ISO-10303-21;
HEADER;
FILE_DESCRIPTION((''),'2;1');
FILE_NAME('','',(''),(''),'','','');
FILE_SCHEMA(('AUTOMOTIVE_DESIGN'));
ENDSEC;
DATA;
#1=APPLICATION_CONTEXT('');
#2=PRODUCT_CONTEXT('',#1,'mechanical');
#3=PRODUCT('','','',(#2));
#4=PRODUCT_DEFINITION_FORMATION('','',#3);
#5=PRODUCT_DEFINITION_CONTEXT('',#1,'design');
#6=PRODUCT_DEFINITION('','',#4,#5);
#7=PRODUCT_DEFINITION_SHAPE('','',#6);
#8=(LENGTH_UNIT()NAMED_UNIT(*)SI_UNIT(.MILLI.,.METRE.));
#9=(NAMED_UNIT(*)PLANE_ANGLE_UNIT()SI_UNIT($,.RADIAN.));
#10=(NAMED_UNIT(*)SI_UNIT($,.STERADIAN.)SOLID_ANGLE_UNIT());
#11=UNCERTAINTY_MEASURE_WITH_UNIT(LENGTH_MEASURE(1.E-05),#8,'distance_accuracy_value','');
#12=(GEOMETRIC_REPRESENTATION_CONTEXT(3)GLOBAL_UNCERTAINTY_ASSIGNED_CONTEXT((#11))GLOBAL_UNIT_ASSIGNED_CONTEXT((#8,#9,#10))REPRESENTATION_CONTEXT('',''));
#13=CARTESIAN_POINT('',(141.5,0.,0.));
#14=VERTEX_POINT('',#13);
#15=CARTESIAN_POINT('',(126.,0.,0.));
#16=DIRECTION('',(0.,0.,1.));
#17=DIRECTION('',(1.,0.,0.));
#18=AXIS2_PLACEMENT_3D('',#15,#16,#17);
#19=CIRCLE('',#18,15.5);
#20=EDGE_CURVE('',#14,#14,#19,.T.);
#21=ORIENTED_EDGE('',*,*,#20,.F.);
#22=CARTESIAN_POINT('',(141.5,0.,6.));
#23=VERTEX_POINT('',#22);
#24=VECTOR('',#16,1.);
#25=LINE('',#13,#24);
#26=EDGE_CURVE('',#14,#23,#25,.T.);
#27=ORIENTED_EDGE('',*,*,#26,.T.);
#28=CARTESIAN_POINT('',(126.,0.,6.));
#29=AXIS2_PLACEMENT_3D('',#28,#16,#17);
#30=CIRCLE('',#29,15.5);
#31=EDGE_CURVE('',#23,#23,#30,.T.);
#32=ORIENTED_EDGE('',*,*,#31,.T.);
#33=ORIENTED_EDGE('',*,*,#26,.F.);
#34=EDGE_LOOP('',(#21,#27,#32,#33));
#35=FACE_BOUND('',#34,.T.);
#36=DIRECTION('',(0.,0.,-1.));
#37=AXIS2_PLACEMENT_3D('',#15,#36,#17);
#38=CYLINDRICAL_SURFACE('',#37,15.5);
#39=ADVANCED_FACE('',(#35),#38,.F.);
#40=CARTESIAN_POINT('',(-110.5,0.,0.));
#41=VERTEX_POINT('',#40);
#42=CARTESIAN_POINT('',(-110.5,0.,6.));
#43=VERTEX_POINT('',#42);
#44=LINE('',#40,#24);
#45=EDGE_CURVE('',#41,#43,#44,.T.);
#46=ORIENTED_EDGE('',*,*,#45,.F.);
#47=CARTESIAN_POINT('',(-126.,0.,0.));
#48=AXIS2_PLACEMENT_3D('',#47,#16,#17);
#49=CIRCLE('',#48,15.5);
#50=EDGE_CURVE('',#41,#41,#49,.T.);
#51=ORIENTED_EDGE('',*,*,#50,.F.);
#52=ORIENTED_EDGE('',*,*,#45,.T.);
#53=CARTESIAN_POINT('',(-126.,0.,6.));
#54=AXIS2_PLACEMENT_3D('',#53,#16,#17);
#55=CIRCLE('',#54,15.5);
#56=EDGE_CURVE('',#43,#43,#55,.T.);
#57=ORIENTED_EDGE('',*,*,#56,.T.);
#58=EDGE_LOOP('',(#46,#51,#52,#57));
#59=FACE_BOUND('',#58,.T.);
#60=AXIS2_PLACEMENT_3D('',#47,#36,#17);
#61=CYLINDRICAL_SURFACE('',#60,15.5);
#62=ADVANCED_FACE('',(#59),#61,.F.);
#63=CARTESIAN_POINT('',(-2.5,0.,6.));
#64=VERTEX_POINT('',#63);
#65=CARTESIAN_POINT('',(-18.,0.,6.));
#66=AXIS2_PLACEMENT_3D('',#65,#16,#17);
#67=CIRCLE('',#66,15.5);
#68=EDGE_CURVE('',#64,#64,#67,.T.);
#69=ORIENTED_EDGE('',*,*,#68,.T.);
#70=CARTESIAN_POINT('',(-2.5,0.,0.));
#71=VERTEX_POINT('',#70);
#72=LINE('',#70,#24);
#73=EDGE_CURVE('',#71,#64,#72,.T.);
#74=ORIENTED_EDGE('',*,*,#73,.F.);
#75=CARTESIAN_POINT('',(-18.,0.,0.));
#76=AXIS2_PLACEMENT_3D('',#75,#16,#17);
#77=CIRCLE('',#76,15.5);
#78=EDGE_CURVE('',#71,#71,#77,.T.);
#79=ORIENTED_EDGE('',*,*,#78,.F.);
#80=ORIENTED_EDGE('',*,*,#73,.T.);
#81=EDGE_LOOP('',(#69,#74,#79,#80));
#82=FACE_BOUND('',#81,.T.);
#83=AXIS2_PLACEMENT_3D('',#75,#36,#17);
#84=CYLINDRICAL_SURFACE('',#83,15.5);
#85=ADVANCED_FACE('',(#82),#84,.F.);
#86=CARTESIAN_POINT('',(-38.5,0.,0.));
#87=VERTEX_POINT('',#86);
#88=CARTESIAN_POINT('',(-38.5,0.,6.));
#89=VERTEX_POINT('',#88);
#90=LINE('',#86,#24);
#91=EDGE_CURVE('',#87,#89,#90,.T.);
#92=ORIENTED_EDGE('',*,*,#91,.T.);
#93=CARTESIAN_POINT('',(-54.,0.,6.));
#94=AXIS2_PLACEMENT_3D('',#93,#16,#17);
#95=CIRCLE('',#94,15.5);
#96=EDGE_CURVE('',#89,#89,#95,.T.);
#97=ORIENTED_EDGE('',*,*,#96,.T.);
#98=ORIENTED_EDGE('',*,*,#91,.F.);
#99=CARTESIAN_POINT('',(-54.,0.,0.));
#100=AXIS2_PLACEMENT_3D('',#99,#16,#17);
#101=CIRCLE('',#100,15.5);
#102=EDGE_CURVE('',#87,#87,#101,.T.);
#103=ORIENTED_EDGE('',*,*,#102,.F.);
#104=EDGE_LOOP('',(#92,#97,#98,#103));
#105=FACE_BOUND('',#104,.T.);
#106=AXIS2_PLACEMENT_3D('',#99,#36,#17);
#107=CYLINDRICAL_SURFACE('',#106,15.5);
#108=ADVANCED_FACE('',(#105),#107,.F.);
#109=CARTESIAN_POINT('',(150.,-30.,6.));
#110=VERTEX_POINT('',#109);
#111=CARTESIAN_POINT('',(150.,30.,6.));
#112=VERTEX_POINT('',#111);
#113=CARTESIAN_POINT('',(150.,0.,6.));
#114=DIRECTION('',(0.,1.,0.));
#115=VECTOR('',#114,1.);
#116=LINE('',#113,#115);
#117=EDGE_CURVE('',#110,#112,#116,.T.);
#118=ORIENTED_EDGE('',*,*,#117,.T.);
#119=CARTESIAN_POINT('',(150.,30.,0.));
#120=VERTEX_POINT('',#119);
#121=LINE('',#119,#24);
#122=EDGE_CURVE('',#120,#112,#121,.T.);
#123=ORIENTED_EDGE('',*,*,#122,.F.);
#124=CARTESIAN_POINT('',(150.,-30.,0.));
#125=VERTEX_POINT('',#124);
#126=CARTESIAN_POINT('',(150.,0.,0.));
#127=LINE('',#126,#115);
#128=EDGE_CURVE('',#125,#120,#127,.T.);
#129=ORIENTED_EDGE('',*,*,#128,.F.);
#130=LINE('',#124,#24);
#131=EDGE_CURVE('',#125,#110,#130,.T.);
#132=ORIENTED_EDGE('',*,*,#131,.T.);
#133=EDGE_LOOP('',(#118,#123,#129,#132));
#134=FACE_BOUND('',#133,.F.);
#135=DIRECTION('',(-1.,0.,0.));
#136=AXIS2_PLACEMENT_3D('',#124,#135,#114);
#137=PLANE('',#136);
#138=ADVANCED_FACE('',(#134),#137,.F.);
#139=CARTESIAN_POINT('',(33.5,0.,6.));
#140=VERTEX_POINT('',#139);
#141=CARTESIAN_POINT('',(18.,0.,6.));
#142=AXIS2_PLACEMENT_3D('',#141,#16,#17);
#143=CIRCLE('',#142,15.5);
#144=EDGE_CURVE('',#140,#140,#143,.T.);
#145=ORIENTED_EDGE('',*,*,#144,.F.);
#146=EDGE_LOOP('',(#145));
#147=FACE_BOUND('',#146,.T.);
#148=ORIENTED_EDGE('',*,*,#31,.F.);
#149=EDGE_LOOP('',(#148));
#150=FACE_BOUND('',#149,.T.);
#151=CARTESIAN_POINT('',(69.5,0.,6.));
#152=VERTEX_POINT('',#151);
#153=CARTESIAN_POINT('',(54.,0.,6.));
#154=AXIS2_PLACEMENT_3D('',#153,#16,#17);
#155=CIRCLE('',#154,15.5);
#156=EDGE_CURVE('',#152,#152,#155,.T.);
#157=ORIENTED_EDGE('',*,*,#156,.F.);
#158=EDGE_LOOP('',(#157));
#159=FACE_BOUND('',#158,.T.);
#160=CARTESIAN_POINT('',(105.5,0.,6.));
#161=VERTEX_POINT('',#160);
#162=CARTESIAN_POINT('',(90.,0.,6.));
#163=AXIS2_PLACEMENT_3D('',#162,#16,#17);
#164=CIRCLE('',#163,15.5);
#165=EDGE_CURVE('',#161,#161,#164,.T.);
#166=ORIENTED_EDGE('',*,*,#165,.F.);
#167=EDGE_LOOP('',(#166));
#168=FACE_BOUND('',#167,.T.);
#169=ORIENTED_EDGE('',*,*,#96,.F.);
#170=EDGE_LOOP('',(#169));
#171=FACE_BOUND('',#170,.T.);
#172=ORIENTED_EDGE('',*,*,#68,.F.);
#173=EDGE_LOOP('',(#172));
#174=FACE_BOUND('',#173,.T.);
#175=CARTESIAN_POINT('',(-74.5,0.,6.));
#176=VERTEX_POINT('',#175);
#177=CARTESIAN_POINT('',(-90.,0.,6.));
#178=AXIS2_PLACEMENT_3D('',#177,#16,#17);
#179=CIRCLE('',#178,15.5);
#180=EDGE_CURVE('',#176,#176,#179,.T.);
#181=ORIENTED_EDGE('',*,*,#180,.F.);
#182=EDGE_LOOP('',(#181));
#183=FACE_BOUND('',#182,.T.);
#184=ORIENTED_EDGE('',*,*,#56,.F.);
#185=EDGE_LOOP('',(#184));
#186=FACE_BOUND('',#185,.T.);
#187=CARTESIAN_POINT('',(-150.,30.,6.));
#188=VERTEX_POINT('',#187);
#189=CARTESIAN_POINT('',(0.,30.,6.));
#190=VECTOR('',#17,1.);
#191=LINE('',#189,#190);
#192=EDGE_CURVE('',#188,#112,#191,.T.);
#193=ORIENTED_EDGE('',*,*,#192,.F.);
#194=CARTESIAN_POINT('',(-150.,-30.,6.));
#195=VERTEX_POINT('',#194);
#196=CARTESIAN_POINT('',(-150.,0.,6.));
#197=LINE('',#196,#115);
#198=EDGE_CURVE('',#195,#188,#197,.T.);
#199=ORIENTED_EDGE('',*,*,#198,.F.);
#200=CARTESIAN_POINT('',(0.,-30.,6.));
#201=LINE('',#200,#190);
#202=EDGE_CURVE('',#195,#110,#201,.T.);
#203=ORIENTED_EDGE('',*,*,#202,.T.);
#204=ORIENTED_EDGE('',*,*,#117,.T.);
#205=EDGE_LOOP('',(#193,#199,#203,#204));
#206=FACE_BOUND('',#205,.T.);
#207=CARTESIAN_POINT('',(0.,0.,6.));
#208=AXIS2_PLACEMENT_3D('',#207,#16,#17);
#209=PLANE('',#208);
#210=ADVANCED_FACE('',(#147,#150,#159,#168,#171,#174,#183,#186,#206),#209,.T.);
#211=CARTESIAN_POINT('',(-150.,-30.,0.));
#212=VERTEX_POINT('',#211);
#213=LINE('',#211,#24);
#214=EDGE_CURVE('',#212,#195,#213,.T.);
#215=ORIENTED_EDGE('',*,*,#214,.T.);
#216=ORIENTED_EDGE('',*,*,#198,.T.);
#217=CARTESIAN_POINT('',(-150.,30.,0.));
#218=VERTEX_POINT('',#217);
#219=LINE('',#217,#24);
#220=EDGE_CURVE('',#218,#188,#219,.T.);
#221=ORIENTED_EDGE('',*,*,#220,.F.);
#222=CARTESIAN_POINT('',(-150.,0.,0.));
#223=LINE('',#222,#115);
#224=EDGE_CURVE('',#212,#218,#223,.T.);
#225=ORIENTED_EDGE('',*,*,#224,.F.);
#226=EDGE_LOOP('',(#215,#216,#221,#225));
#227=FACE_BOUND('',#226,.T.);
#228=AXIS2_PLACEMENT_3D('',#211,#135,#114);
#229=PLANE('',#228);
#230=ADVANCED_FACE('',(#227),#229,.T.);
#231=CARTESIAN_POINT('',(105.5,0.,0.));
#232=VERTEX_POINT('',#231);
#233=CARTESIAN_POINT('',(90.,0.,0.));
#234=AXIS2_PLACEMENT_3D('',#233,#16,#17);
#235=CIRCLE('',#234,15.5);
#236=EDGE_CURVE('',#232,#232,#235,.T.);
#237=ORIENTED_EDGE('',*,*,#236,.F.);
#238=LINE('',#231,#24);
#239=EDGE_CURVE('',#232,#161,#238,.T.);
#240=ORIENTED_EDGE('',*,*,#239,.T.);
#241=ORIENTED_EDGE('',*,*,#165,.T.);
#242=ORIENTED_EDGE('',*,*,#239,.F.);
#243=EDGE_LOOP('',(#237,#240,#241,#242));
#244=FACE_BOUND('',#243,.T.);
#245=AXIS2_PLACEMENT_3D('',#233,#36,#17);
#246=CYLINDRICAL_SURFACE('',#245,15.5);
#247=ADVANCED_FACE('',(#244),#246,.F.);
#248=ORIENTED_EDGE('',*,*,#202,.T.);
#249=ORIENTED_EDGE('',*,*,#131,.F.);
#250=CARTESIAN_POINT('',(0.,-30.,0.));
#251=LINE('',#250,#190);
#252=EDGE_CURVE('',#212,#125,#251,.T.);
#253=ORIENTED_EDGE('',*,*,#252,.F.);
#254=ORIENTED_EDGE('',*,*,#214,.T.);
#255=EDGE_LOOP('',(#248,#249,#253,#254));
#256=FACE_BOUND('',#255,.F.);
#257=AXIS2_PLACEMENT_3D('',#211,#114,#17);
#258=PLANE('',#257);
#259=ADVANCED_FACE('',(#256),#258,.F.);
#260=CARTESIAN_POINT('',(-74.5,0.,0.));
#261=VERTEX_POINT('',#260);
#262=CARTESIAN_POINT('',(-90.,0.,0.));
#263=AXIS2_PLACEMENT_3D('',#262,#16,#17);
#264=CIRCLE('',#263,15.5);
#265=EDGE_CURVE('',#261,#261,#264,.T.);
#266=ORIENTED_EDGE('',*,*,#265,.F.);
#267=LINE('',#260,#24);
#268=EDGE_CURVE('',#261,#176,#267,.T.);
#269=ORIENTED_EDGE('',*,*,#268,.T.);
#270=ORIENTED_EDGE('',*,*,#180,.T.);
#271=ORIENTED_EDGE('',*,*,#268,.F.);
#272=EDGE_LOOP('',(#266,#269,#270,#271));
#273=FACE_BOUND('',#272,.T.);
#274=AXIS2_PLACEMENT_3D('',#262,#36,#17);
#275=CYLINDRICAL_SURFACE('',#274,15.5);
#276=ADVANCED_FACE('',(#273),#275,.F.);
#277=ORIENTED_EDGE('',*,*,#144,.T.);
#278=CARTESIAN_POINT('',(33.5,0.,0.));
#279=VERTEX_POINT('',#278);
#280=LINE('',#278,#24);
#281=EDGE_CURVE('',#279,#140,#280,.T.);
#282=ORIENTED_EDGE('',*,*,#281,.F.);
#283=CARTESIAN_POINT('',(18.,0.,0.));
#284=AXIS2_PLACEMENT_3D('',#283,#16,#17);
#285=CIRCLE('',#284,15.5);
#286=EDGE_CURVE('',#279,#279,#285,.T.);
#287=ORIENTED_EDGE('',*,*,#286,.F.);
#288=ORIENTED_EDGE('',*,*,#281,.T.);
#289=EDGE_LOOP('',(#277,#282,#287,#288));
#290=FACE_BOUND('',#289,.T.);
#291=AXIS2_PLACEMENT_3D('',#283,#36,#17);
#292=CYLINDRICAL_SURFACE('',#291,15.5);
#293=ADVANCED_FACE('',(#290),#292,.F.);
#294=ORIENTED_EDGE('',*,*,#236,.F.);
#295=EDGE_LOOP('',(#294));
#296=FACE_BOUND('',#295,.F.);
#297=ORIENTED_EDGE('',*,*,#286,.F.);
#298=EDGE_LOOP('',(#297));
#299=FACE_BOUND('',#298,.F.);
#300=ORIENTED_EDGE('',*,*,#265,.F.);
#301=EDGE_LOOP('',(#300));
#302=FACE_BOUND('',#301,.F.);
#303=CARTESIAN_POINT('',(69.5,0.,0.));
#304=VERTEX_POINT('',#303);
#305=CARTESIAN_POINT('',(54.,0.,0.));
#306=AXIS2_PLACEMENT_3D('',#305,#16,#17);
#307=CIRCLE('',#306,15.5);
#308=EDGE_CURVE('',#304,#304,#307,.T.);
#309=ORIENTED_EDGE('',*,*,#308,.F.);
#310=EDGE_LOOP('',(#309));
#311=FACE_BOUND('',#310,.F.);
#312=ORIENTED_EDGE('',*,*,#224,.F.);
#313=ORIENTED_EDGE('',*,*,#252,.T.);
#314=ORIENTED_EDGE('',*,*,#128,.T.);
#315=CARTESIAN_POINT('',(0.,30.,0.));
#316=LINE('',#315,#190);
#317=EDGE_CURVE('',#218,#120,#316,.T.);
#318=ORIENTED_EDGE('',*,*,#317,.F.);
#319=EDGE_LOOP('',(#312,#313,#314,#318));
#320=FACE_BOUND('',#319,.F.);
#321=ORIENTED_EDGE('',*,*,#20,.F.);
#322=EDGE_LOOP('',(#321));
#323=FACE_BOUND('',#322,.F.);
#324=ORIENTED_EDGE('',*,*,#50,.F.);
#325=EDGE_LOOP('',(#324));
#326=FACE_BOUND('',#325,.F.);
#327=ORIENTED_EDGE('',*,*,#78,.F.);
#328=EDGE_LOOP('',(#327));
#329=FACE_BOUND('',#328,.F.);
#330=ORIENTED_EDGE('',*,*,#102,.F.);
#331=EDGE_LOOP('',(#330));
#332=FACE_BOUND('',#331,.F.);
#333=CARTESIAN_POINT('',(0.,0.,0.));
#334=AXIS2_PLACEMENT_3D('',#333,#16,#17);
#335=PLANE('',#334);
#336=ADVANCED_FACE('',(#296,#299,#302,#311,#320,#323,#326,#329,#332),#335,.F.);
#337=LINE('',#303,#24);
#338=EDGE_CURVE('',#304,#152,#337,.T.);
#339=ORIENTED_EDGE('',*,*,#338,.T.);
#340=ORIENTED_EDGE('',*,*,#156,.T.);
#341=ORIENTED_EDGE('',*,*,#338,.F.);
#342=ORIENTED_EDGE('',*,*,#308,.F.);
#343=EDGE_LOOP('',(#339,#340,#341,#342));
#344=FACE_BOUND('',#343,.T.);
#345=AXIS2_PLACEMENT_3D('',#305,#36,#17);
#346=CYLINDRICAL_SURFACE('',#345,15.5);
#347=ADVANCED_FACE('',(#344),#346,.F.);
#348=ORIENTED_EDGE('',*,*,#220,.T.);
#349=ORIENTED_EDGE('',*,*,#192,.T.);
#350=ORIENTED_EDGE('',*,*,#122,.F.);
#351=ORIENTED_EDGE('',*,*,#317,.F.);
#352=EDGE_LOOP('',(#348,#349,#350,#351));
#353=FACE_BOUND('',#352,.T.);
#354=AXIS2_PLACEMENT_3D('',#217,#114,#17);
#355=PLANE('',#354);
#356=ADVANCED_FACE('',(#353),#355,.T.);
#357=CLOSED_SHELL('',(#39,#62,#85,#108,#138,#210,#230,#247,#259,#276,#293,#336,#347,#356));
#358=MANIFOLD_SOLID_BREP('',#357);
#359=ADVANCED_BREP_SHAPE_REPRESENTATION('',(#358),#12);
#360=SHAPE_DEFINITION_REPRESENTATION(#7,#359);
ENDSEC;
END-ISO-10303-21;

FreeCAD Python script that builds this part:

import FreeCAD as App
import Part
import Sketcher

V = App.Vector
Q = App.Units.Quantity


def add_polygon(sketch, points):
    """Adds a closed chain of lines whose ends are joined by coincident constraints."""
    first, n = sketch.GeometryCount, len(points)
    for a, b in zip(points, points[1:] + points[:1]):
        sketch.addGeometry(Part.LineSegment(App.Vector(*a, 0), App.Vector(*b, 0)), False)
    for i in range(n):
        sketch.addConstraint(Sketcher.Constraint("Coincident", first + i, 2, first + (i + 1) % n, 1))

doc = App.newDocument("Part")
body = doc.addObject("PartDesign::Body", "Body")

# Sketch on XY plane
sketch1 = body.newObject("Sketcher::SketchObject", "Sketch")
sketch1.AttachmentSupport = (doc.getObject("XY_Plane"), [""])
sketch1.MapMode = "FlatFace"
add_polygon(sketch1, [(-150, 30), (-150, -30), (150, -30), (150, 30)])  # lines 0-3
sketch1.addGeometry(Part.Circle(V(-126, 0, 0), V(0, 0, 1), 15.5), False)  # 4
sketch1.addGeometry(Part.Circle(V(-90, 0, 0), V(0, 0, 1), 15.5), False)  # 5
sketch1.addGeometry(Part.Circle(V(-54, 0, 0), V(0, 0, 1), 15.5), False)  # 6
sketch1.addGeometry(Part.Circle(V(-18, 0, 0), V(0, 0, 1), 15.5), False)  # 7
sketch1.addGeometry(Part.Circle(V(18, 0, 0), V(0, 0, 1), 15.5), False)  # 8
sketch1.addGeometry(Part.Circle(V(54, 0, 0), V(0, 0, 1), 15.5), False)  # 9
sketch1.addGeometry(Part.Circle(V(90, 0, 0), V(0, 0, 1), 15.5), False)  # 10
sketch1.addGeometry(Part.Circle(V(126, 0, 0), V(0, 0, 1), 15.5), False)  # 11
sketch1.addConstraint(Sketcher.Constraint("Vertical", 0))
sketch1.addConstraint(Sketcher.Constraint("Horizontal", 1))
sketch1.addConstraint(Sketcher.Constraint("Vertical", 2))
sketch1.addConstraint(Sketcher.Constraint("Horizontal", 3))
sketch1.addConstraint(Sketcher.Constraint("Equal", 4, 5))
sketch1.addConstraint(Sketcher.Constraint("Equal", 5, 6))
sketch1.addConstraint(Sketcher.Constraint("Equal", 6, 7))
sketch1.addConstraint(Sketcher.Constraint("Equal", 7, 8))
sketch1.addConstraint(Sketcher.Constraint("Equal", 8, 9))
sketch1.addConstraint(Sketcher.Constraint("Equal", 9, 10))
sketch1.addConstraint(Sketcher.Constraint("Equal", 10, 11))
sketch1.addConstraint(Sketcher.Constraint("Symmetric", 7, 3, 8, 3, -1, 1))
sketch1.addConstraint(Sketcher.Constraint("Symmetric", 6, 3, 9, 3, -1, 1))
sketch1.addConstraint(Sketcher.Constraint("Symmetric", 5, 3, 10, 3, -1, 1))
sketch1.addConstraint(Sketcher.Constraint("Symmetric", 4, 3, 11, 3, -1, 1))
sketch1.addConstraint(Sketcher.Constraint("Symmetric", 0, 2, 2, 2, -1, 1))
sketch1.addConstraint(Sketcher.Constraint("PointOnObject", 4, 3, -1))
sketch1.addConstraint(Sketcher.Constraint("PointOnObject", 5, 3, -1))
sketch1.addConstraint(Sketcher.Constraint("PointOnObject", 6, 3, -1))
sketch1.addConstraint(Sketcher.Constraint("PointOnObject", 7, 3, -1))
sketch1.addConstraint(Sketcher.Constraint("Diameter", 4, Q("31 mm")))
sketch1.addConstraint(Sketcher.Constraint("DistanceX", 1, 1, 1, 2, Q("300 mm")))
sketch1.addConstraint(Sketcher.Constraint("DistanceY", 0, 2, 0, 1, Q("60 mm")))
sketch1.addConstraint(Sketcher.Constraint("DistanceX", 4, 3, -1, 1, Q("126 mm")))
sketch1.addConstraint(Sketcher.Constraint("DistanceX", 5, 3, -1, 1, Q("90 mm")))
sketch1.addConstraint(Sketcher.Constraint("DistanceX", 6, 3, -1, 1, Q("54 mm")))
sketch1.addConstraint(Sketcher.Constraint("DistanceX", 7, 3, -1, 1, Q("18 mm")))
pad1 = body.newObject("PartDesign::Pad", "Pad")
pad1.Profile = sketch1
pad1.Length = 6

doc.recompute()
